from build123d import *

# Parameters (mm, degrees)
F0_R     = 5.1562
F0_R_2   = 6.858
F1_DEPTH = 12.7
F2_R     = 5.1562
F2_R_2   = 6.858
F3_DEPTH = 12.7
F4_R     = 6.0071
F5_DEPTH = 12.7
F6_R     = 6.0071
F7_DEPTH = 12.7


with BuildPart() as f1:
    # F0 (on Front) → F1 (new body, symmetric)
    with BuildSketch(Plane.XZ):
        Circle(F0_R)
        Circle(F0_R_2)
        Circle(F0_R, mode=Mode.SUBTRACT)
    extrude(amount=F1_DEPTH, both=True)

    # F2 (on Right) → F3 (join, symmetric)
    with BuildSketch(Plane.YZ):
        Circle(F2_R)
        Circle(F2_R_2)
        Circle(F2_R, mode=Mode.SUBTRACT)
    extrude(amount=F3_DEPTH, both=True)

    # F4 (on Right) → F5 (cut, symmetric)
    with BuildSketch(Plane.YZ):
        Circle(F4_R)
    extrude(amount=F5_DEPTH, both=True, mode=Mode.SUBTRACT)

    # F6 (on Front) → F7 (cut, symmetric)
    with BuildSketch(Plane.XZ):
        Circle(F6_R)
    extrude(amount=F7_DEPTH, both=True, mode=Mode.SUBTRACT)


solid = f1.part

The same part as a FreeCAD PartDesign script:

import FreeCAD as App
import Part
import Sketcher

V = App.Vector
Q = App.Units.Quantity

doc = App.newDocument("Part")
body = doc.addObject("PartDesign::Body", "Body")

sketch1 = doc.addObject("Sketcher::SketchObject", "Sketch")
body.addObject(sketch1)
sketch1.AttachmentSupport = (doc.XZ_Plane, [""])
sketch1.MapMode = "FlatFace"
sketch1.addGeometry([
    Part.Circle(V(0, 0, 0), V(0, 0, 1), 6.858),
    Part.Circle(V(0, 0, 0), V(0, 0, 1), 5.1562),
], False)
sketch1.addConstraint([
    Sketcher.Constraint("Coincident", 0, 3, -1, 1),
    Sketcher.Constraint("Coincident", 1, 3, -1, 1),
    Sketcher.Constraint("Diameter", 0, Q("0.54 in")),
    Sketcher.Constraint("Diameter", 1, Q("0.406 in")),
])
pad1 = doc.addObject("PartDesign::Pad", "Pad")
body.addObject(pad1)
pad1.Profile = sketch1
pad1.Length = Q("1 in")
pad1.Midplane = True

sketch2 = doc.addObject("Sketcher::SketchObject", "Sketch001")
body.addObject(sketch2)
sketch2.AttachmentSupport = (doc.YZ_Plane, [""])
sketch2.MapMode = "FlatFace"
sketch2.addGeometry([
    Part.Circle(V(0, 0, 0), V(0, 0, 1), 6.858),
    Part.Circle(V(0, 0, 0), V(0, 0, 1), 5.1562),
], False)
sketch2.addConstraint([
    Sketcher.Constraint("Coincident", 0, 3, -1, 1),
    Sketcher.Constraint("Coincident", 1, 3, -1, 1),
    Sketcher.Constraint("Diameter", 0, Q("0.54 in")),
    Sketcher.Constraint("Diameter", 1, Q("0.406 in")),
])
pad2 = doc.addObject("PartDesign::Pad", "Pad001")
body.addObject(pad2)
pad2.Profile = sketch2
pad2.Length = Q("1 in")
pad2.Midplane = True

sketch3 = doc.addObject("Sketcher::SketchObject", "Sketch002")
body.addObject(sketch3)
sketch3.AttachmentSupport = (doc.YZ_Plane, [""])
sketch3.MapMode = "FlatFace"
sketch3.addGeometry(Part.Circle(V(0, 0, 0), V(0, 0, 1), 6.0071), False)
sketch3.addConstraint([
    Sketcher.Constraint("Coincident", 0, 3, -1, 1),
    Sketcher.Constraint("Diameter", 0, Q("0.473 in")),
])
pocket1 = doc.addObject("PartDesign::Pocket", "Pocket")
body.addObject(pocket1)
pocket1.Profile = sketch3
pocket1.Length = Q("1 in")
pocket1.Midplane = True

sketch4 = doc.addObject("Sketcher::SketchObject", "Sketch003")
body.addObject(sketch4)
sketch4.AttachmentSupport = (doc.XZ_Plane, [""])
sketch4.MapMode = "FlatFace"
sketch4.addGeometry(Part.Circle(V(0, 0, 0), V(0, 0, 1), 6.0071), False)
sketch4.addConstraint([
    Sketcher.Constraint("Coincident", 0, 3, -1, 1),
    Sketcher.Constraint("Diameter", 0, Q("0.473 in")),
])
pocket2 = doc.addObject("PartDesign::Pocket", "Pocket001")
body.addObject(pocket2)
pocket2.Profile = sketch4
pocket2.Length = Q("1 in")
pocket2.Midplane = True

doc.recompute()
